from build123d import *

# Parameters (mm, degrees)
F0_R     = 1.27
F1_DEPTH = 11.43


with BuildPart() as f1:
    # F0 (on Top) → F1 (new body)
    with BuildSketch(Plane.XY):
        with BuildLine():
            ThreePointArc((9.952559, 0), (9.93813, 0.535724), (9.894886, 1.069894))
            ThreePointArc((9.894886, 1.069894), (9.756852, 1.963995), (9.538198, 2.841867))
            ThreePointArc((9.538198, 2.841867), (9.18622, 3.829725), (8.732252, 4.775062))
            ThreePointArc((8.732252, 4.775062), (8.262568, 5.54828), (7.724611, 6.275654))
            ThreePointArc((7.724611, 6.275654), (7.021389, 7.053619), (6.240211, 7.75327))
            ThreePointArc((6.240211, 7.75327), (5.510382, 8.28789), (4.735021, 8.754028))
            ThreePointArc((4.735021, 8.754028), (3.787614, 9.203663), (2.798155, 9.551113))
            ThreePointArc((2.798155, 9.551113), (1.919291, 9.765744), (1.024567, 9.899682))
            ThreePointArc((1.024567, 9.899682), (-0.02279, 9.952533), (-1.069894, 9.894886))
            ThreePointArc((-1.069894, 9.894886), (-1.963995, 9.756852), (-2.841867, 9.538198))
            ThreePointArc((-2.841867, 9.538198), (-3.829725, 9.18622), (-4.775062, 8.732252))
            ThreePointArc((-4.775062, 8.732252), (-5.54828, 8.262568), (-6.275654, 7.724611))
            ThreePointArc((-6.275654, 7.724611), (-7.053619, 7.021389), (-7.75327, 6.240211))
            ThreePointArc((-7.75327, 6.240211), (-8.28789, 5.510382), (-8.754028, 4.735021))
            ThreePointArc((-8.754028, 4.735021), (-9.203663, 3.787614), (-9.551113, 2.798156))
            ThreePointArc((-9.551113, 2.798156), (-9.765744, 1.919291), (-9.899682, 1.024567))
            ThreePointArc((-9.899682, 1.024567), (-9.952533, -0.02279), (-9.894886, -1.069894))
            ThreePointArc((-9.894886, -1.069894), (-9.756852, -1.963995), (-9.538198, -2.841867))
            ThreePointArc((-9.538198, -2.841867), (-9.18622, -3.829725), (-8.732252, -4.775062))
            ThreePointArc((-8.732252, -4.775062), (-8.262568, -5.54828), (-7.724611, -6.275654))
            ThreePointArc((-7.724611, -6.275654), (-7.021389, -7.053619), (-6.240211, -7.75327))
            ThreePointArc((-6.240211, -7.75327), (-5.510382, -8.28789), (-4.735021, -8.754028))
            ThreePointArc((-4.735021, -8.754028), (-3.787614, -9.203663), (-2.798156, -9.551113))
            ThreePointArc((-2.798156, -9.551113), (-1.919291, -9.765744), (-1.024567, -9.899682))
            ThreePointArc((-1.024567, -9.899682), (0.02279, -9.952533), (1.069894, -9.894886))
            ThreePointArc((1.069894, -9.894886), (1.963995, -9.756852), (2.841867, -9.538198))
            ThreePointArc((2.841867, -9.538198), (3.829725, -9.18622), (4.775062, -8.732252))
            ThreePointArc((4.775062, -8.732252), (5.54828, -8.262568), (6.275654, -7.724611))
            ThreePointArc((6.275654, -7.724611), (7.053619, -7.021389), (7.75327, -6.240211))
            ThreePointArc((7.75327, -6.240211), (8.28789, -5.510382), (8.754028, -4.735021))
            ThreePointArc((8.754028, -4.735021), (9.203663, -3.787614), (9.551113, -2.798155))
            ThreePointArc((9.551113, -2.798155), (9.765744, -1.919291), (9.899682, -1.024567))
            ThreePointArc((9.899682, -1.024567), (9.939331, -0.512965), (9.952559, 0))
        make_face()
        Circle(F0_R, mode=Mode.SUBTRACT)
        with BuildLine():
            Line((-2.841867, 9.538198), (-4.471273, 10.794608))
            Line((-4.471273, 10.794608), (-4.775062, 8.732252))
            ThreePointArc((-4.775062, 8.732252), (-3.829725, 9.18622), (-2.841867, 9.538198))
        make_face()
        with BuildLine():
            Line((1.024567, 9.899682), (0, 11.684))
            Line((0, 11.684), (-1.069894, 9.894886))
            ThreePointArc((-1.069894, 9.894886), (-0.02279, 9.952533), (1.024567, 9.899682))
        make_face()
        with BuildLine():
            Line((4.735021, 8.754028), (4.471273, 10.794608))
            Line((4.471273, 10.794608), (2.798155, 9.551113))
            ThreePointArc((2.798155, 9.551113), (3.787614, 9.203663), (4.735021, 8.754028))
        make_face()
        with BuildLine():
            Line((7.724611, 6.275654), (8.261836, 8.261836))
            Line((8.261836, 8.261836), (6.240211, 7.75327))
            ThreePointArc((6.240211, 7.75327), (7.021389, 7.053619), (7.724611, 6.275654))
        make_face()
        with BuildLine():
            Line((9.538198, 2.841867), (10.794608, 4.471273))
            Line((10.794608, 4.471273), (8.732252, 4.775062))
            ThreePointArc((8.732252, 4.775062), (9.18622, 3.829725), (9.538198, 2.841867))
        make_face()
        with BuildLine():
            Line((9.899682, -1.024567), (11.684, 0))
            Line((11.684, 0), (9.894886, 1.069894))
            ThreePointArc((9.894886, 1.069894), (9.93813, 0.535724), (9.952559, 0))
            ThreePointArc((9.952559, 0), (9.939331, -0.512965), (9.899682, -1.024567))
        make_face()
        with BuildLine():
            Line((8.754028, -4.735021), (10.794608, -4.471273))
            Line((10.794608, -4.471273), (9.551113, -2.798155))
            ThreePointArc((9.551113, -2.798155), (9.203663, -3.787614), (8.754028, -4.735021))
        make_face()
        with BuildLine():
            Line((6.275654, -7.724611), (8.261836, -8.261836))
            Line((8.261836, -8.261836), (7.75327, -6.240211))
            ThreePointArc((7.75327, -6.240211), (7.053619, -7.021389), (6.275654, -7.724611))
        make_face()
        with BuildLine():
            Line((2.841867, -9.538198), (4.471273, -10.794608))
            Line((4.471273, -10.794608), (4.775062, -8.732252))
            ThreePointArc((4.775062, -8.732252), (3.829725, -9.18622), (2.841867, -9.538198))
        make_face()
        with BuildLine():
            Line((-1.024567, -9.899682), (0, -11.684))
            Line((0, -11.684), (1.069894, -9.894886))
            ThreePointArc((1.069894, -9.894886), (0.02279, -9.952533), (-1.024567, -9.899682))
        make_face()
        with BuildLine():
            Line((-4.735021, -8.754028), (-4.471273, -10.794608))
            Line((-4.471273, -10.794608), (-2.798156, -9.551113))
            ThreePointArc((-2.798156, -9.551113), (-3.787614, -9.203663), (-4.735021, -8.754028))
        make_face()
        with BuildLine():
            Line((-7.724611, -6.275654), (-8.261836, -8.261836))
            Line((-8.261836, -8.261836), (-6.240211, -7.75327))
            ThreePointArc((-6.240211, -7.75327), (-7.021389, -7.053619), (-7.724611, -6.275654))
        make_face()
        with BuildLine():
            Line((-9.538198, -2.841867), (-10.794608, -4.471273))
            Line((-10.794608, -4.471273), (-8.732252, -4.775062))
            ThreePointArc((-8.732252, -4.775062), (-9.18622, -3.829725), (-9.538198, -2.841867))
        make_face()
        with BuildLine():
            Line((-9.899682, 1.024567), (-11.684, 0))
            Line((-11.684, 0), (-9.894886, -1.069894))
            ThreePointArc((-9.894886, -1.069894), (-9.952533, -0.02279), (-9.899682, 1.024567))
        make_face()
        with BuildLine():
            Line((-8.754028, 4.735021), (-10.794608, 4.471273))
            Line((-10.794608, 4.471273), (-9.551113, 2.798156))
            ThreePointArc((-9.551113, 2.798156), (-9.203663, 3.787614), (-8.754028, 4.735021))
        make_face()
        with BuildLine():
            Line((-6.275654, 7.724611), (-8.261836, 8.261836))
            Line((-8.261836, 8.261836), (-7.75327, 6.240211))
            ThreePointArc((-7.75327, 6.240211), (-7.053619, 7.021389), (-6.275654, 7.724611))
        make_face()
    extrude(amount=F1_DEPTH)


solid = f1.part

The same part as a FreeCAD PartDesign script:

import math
import FreeCAD as App
import Part
import Sketcher

V = App.Vector
Q = App.Units.Quantity

doc = App.newDocument("Part")
params = doc.addObject("Spreadsheet::Sheet", "Params")
for row, (alias, value) in enumerate([
    ("sketch1_diameter", "0.1 in"),
    ("pad1_length", "0.45 in"),
], start=1):
    params.set(f"A{row}", alias)
    params.set(f"B{row}", "=" + value)
    params.setAlias(f"B{row}", alias)

body = doc.addObject("PartDesign::Body", "Body")

sketch1 = doc.addObject("Sketcher::SketchObject", "Sketch")
body.addObject(sketch1)
sketch1.AttachmentSupport = (doc.XY_Plane, [""])
sketch1.MapMode = "FlatFace"
sketch1.addGeometry([
    Part.ArcOfCircle(Part.Circle(V(0.000021, 0.000001, 0), V(0, 0, 1), 9.952539), math.radians(6.171196), math.radians(16.591241)),
    Part.LineSegment(V(9.538198, 2.841867, 0), V(10.794608, 4.471273, 0)),
    Part.LineSegment(V(10.794608, 4.471273, 0), V(8.732252, 4.775062, 0)),
    Part.ArcOfCircle(Part.Circle(V(-0.000044, -0.000027, 0), V(0, 0, 1), 9.952611), math.radians(28.671202), math.radians(39.091175)),
    Part.LineSegment(V(7.724611, 6.275654, 0), V(8.261836, 8.261836, 0)),
    Part.LineSegment(V(8.261836, 8.261836, 0), V(6.240211, 7.75327, 0)),
    Part.ArcOfCircle(Part.Circle(V(0.000006, 0.000009, 0), V(0, 0, 1), 9.952548), math.radians(51.171181), math.radians(61.591214)),
    Part.LineSegment(V(4.735021, 8.754028, 0), V(4.471273, 10.794608, 0)),
    Part.LineSegment(V(4.471273, 10.794608, 0), V(2.798155, 9.551113, 0)),
    Part.ArcOfCircle(Part.Circle(V(-0.000008, -0.000027, 0), V(0, 0, 1), 9.952587), math.radians(73.671188), math.radians(84.091183)),
    Part.LineSegment(V(1.024567, 9.899682, 0), V(0, 11.684, 0)),
    Part.LineSegment(V(0, 11.684, 0), V(-1.069894, 9.894886, 0)),
    Part.ArcOfCircle(Part.Circle(V(-0.000001, 0.000021, 0), V(0, 0, 1), 9.952539), math.radians(96.171196), math.radians(106.591241)),
    Part.LineSegment(V(-2.841867, 9.538198, 0), V(-4.471273, 10.794608, 0)),
    Part.LineSegment(V(-4.471273, 10.794608, 0), V(-4.775062, 8.732252, 0)),
    Part.ArcOfCircle(Part.Circle(V(0.000027, -0.000044, 0), V(0, 0, 1), 9.952611), math.radians(118.671202), math.radians(129.091175)),
    Part.LineSegment(V(-6.275654, 7.724611, 0), V(-8.261836, 8.261836, 0)),
    Part.LineSegment(V(-8.261836, 8.261836, 0), V(-7.75327, 6.240211, 0)),
    Part.ArcOfCircle(Part.Circle(V(-0.000009, 0.000006, 0), V(0, 0, 1), 9.952548), math.radians(141.171181), math.radians(151.591214)),
    Part.LineSegment(V(-8.754028, 4.735021, 0), V(-10.794608, 4.471273, 0)),
    Part.LineSegment(V(-10.794608, 4.471273, 0), V(-9.551113, 2.798156, 0)),
    Part.ArcOfCircle(Part.Circle(V(0.00006, -0.000013, 0), V(0, 0, 1), 9.952621), math.radians(163.671209), math.radians(174.091174)),
    Part.LineSegment(V(-9.899682, 1.024567, 0), V(-11.684, 0, 0)),
    Part.LineSegment(V(-11.684, 0, 0), V(-9.894886, -1.069894, 0)),
    Part.ArcOfCircle(Part.Circle(V(-0.000021, -0.000001, 0), V(0, 0, 1), 9.952539), math.radians(-173.828804), math.radians(-163.408759)),
    Part.LineSegment(V(-9.538198, -2.841867, 0), V(-10.794608, -4.471273, 0)),
    Part.LineSegment(V(-10.794608, -4.471273, 0), V(-8.732252, -4.775062, 0)),
    Part.ArcOfCircle(Part.Circle(V(0.000044, 0.000027, 0), V(0, 0, 1), 9.952611), math.radians(-151.328798), math.radians(-140.908825)),
    Part.LineSegment(V(-7.724611, -6.275654, 0), V(-8.261836, -8.261836, 0)),
    Part.LineSegment(V(-8.261836, -8.261836, 0), V(-6.240211, -7.75327, 0)),
    Part.ArcOfCircle(Part.Circle(V(-0.000006, -0.000009, 0), V(0, 0, 1), 9.952548), math.radians(-128.828819), math.radians(-118.408786)),
    Part.LineSegment(V(-4.735021, -8.754028, 0), V(-4.471273, -10.794608, 0)),
    Part.LineSegment(V(-4.471273, -10.794608, 0), V(-2.798156, -9.551113, 0)),
    Part.ArcOfCircle(Part.Circle(V(0.000013, 0.00006, 0), V(0, 0, 1), 9.952621), math.radians(-106.328791), math.radians(-95.908826)),
    Part.LineSegment(V(-1.024567, -9.899682, 0), V(0, -11.684, 0)),
    Part.LineSegment(V(0, -11.684, 0), V(1.069894, -9.894886, 0)),
    Part.ArcOfCircle(Part.Circle(V(0.000001, -0.000021, 0), V(0, 0, 1), 9.952539), math.radians(-83.828804), math.radians(-73.408759)),
    Part.LineSegment(V(2.841867, -9.538198, 0), V(4.471273, -10.794608, 0)),
    Part.LineSegment(V(4.471273, -10.794608, 0), V(4.775062, -8.732252, 0)),
    Part.ArcOfCircle(Part.Circle(V(-0.000027, 0.000044, 0), V(0, 0, 1), 9.952611), math.radians(-61.328798), math.radians(-50.908825)),
    Part.LineSegment(V(6.275654, -7.724611, 0), V(8.261836, -8.261836, 0)),
    Part.LineSegment(V(8.261836, -8.261836, 0), V(7.75327, -6.240211, 0)),
    Part.ArcOfCircle(Part.Circle(V(0.000009, -0.000006, 0), V(0, 0, 1), 9.952548), math.radians(-38.828819), math.radians(-28.408786)),
    Part.LineSegment(V(8.754028, -4.735021, 0), V(10.794608, -4.471273, 0)),
    Part.LineSegment(V(10.794608, -4.471273, 0), V(9.551113, -2.798155, 0)),
    Part.ArcOfCircle(Part.Circle(V(-0.000027, 0.000008, 0), V(0, 0, 1), 9.952587), math.radians(-16.328812), math.radians(-5.908817)),
    Part.LineSegment(V(9.899682, -1.024567, 0), V(11.684, 0, 0)),
    Part.LineSegment(V(11.684, 0, 0), V(9.894886, 1.069894, 0)),
    Part.Circle(V(0, 0, 0), V(0, 0, 1), 1.27),
], False)
sketch1.addConstraint([
    Sketcher.Constraint("Coincident", 0, 2, 1, 1),
    Sketcher.Constraint("Coincident", 1, 2, 2, 1),
    Sketcher.Constraint("Coincident", 2, 2, 3, 1),
    Sketcher.Constraint("Coincident", 3, 2, 4, 1),
    Sketcher.Constraint("Coincident", 4, 2, 5, 1),
    Sketcher.Constraint("Coincident", 5, 2, 6, 1),
    Sketcher.Constraint("Coincident", 6, 2, 7, 1),
    Sketcher.Constraint("Coincident", 7, 2, 8, 1),
    Sketcher.Constraint("Coincident", 8, 2, 9, 1),
    Sketcher.Constraint("Coincident", 9, 2, 10, 1),
    Sketcher.Constraint("Coincident", 10, 2, 11, 1),
    Sketcher.Constraint("Coincident", 11, 2, 12, 1),
    Sketcher.Constraint("Coincident", 12, 2, 13, 1),
    Sketcher.Constraint("Coincident", 13, 2, 14, 1),
    Sketcher.Constraint("Coincident", 14, 2, 15, 1),
    Sketcher.Constraint("Coincident", 15, 2, 16, 1),
    Sketcher.Constraint("Coincident", 16, 2, 17, 1),
    Sketcher.Constraint("Coincident", 17, 2, 18, 1),
    Sketcher.Constraint("Coincident", 18, 2, 19, 1),
    Sketcher.Constraint("Coincident", 19, 2, 20, 1),
    Sketcher.Constraint("Coincident", 20, 2, 21, 1),
    Sketcher.Constraint("Coincident", 21, 2, 22, 1),
    Sketcher.Constraint("Coincident", 22, 2, 23, 1),
    Sketcher.Constraint("Coincident", 23, 2, 24, 1),
    Sketcher.Constraint("Coincident", 24, 2, 25, 1),
    Sketcher.Constraint("Coincident", 25, 2, 26, 1),
    Sketcher.Constraint("Coincident", 26, 2, 27, 1),
    Sketcher.Constraint("Coincident", 27, 2, 28, 1),
    Sketcher.Constraint("Coincident", 28, 2, 29, 1),
    Sketcher.Constraint("Coincident", 29, 2, 30, 1),
    Sketcher.Constraint("Coincident", 30, 2, 31, 1),
    Sketcher.Constraint("Coincident", 31, 2, 32, 1),
    Sketcher.Constraint("Coincident", 32, 2, 33, 1),
    Sketcher.Constraint("Coincident", 33, 2, 34, 1),
    Sketcher.Constraint("Coincident", 34, 2, 35, 1),
    Sketcher.Constraint("Coincident", 35, 2, 36, 1),
    Sketcher.Constraint("Coincident", 36, 2, 37, 1),
    Sketcher.Constraint("Coincident", 37, 2, 38, 1),
    Sketcher.Constraint("Coincident", 38, 2, 39, 1),
    Sketcher.Constraint("Coincident", 39, 2, 40, 1),
    Sketcher.Constraint("Coincident", 40, 2, 41, 1),
    Sketcher.Constraint("Coincident", 41, 2, 42, 1),
    Sketcher.Constraint("Coincident", 42, 2, 43, 1),
    Sketcher.Constraint("Coincident", 43, 2, 44, 1),
    Sketcher.Constraint("Coincident", 44, 2, 45, 1),
    Sketcher.Constraint("Coincident", 45, 2, 46, 1),
    Sketcher.Constraint("Coincident", 46, 2, 47, 1),
    Sketcher.Constraint("Coincident", 47, 2, 0, 1),
    Sketcher.Constraint("Coincident", 48, 3, -1, 1),
    Sketcher.Constraint("PointOnObject", 0, 3, -1),
    Sketcher.Constraint("PointOnObject", 12, 3, -2),
    Sketcher.Constraint("PointOnObject", 24, 3, -1),
    Sketcher.Constraint("PointOnObject", 36, 3, -2),
    Sketcher.Constraint("PointOnObject", 10, 2, -2),
    Sketcher.Constraint("PointOnObject", 22, 2, -1),
    Sketcher.Constraint("PointOnObject", 34, 2, -2),
    Sketcher.Constraint("PointOnObject", 46, 2, -1),
    Sketcher.Constraint("Diameter", 48, Q("0.1 in")),
    Sketcher.Constraint("DistanceY", -1, 1, 10, 2, Q("0.46 in")),
    Sketcher.Constraint("DistanceX", 22, 2, -1, 1, Q("0.46 in")),
    Sketcher.Constraint("DistanceY", 34, 2, -1, 1, Q("0.46 in")),
    Sketcher.Constraint("DistanceX", -1, 1, 46, 2, Q("0.46 in")),
    Sketcher.Constraint("Radius", 0, Q("9.952539 mm")),
    Sketcher.Constraint("Radius", 3, Q("9.952611 mm")),
    Sketcher.Constraint("Radius", 6, Q("9.952548 mm")),
    Sketcher.Constraint("Radius", 12, Q("9.952539 mm")),
    Sketcher.Constraint("Radius", 15, Q("9.952611 mm")),
    Sketcher.Constraint("Radius", 18, Q("9.952548 mm")),
    Sketcher.Constraint("Radius", 21, Q("9.952621 mm")),
    Sketcher.Constraint("Radius", 24, Q("9.952539 mm")),
    Sketcher.Constraint("Radius", 27, Q("9.952611 mm")),
    Sketcher.Constraint("Radius", 30, Q("9.952548 mm")),
    Sketcher.Constraint("Radius", 33, Q("9.952621 mm")),
    Sketcher.Constraint("Radius", 36, Q("9.952539 mm")),
    Sketcher.Constraint("Radius", 39, Q("9.952611 mm")),
    Sketcher.Constraint("Radius", 42, Q("9.952548 mm")),
    Sketcher.Constraint("Radius", 9, Q("9.952587 mm")),
    Sketcher.Constraint("Radius", 45, Q("9.952587 mm")),
    Sketcher.Constraint("Distance", 2, Q("2.08461 mm")),
    Sketcher.Constraint("Distance", 5, Q("2.084612 mm")),
    Sketcher.Constraint("Distance", 8, Q("2.084611 mm")),
    Sketcher.Constraint("Distance", 11, Q("2.084611 mm")),
    Sketcher.Constraint("Distance", 14, Q("2.08461 mm")),
    Sketcher.Constraint("Distance", 17, Q("2.084612 mm")),
    Sketcher.Constraint("Distance", 20, Q("2.08461 mm")),
    Sketcher.Constraint("Distance", 23, Q("2.084611 mm")),
    Sketcher.Constraint("Distance", 26, Q("2.08461 mm")),
    Sketcher.Constraint("Distance", 29, Q("2.084612 mm")),
    Sketcher.Constraint("Distance", 32, Q("2.08461 mm")),
    Sketcher.Constraint("Distance", 35, Q("2.084611 mm")),
    Sketcher.Constraint("Distance", 38, Q("2.08461 mm")),
    Sketcher.Constraint("Distance", 41, Q("2.084612 mm")),
    Sketcher.Constraint("Distance", 44, Q("2.084611 mm")),
    Sketcher.Constraint("Distance", 47, Q("2.084611 mm")),
    Sketcher.Constraint("DistanceX", -1, 1, 3, 2, Q("7.724611 mm")),
    Sketcher.Constraint("DistanceX", -1, 1, 5, 2, Q("6.240211 mm")),
    Sketcher.Constraint("DistanceY", -1, 1, 5, 2, Q("7.75327 mm")),
    Sketcher.Constraint("DistanceX", -1, 1, 6, 2, Q("4.735021 mm")),
    Sketcher.Constraint("DistanceY", -1, 1, 15, 2, Q("7.724611 mm")),
    Sketcher.Constraint("DistanceX", 17, 2, -1, 1, Q("7.75327 mm")),
    Sketcher.Constraint("DistanceY", -1, 1, 17, 2, Q("6.240211 mm")),
    Sketcher.Constraint("DistanceY", -1, 1, 18, 2, Q("4.735021 mm")),
    Sketcher.Constraint("DistanceX", 27, 2, -1, 1, Q("7.724611 mm")),
    Sketcher.Constraint("DistanceX", 29, 2, -1, 1, Q("6.240211 mm")),
    Sketcher.Constraint("DistanceY", 29, 2, -1, 1, Q("7.75327 mm")),
    Sketcher.Constraint("DistanceX", 30, 2, -1, 1, Q("4.735021 mm")),
    Sketcher.Constraint("DistanceY", 39, 2, -1, 1, Q("7.724611 mm")),
    Sketcher.Constraint("DistanceX", -1, 1, 41, 2, Q("7.75327 mm")),
    Sketcher.Constraint("DistanceY", 41, 2, -1, 1, Q("6.240211 mm")),
    Sketcher.Constraint("DistanceY", 42, 2, -1, 1, Q("4.735021 mm")),
    Sketcher.Constraint("Distance", 1, Q("2.057554 mm")),
    Sketcher.Constraint("Distance", 4, Q("2.057554 mm")),
    Sketcher.Constraint("Distance", 7, Q("2.057554 mm")),
    Sketcher.Constraint("Distance", 10, Q("2.057554 mm")),
    Sketcher.Constraint("Distance", 13, Q("2.057554 mm")),
    Sketcher.Constraint("Distance", 16, Q("2.057554 mm")),
    Sketcher.Constraint("Distance", 19, Q("2.057554 mm")),
    Sketcher.Constraint("Distance", 22, Q("2.057554 mm")),
    Sketcher.Constraint("Distance", 25, Q("2.057554 mm")),
    Sketcher.Constraint("Distance", 28, Q("2.057554 mm")),
    Sketcher.Constraint("Distance", 31, Q("2.057554 mm")),
    Sketcher.Constraint("Distance", 34, Q("2.057554 mm")),
    Sketcher.Constraint("Distance", 37, Q("2.057554 mm")),
    Sketcher.Constraint("Distance", 40, Q("2.057554 mm")),
    Sketcher.Constraint("Distance", 43, Q("2.057554 mm")),
    Sketcher.Constraint("Distance", 46, Q("2.057554 mm")),
    Sketcher.Constraint("DistanceX", -1, 1, 0, 2, Q("9.538198 mm")),
    Sketcher.Constraint("DistanceY", -1, 1, 0, 2, Q("2.841867 mm")),
    Sketcher.Constraint("DistanceX", -1, 1, 1, 2, Q("10.794608 mm")),
    Sketcher.Constraint("DistanceX", -1, 1, 2, 2, Q("8.732252 mm")),
    Sketcher.Constraint("DistanceY", -1, 1, 3, 2, Q("6.275654 mm")),
    Sketcher.Constraint("DistanceY", -1, 1, 6, 2, Q("8.754028 mm")),
    Sketcher.Constraint("DistanceX", -1, 1, 7, 2, Q("4.471273 mm")),
    Sketcher.Constraint("DistanceX", -1, 1, 8, 2, Q("2.798155 mm")),
    Sketcher.Constraint("DistanceX", -1, 1, 9, 2, Q("1.024567 mm")),
    Sketcher.Constraint("DistanceX", 11, 2, -1, 1, Q("1.069894 mm")),
    Sketcher.Constraint("DistanceX", 12, 2, -1, 1, Q("2.841867 mm")),
    Sketcher.Constraint("DistanceX", 13, 2, -1, 1, Q("4.471273 mm")),
    Sketcher.Constraint("DistanceX", 14, 2, -1, 1, Q("4.775062 mm")),
    Sketcher.Constraint("DistanceX", 15, 2, -1, 1, Q("6.275654 mm")),
    Sketcher.Constraint("DistanceX", 18, 2, -1, 1, Q("8.754028 mm")),
    Sketcher.Constraint("DistanceX", 19, 2, -1, 1, Q("10.794608 mm")),
    Sketcher.Constraint("DistanceX", 20, 2, -1, 1, Q("9.551113 mm")),
    Sketcher.Constraint("DistanceX", 21, 2, -1, 1, Q("9.899682 mm")),
    Sketcher.Constraint("DistanceX", 23, 2, -1, 1, Q("9.894886 mm")),
    Sketcher.Constraint("DistanceX", 24, 2, -1, 1, Q("9.538198 mm")),
    Sketcher.Constraint("DistanceX", 25, 2, -1, 1, Q("10.794608 mm")),
    Sketcher.Constraint("DistanceX", 26, 2, -1, 1, Q("8.732252 mm")),
    Sketcher.Constraint("DistanceY", 27, 2, -1, 1, Q("6.275654 mm")),
    Sketcher.Constraint("DistanceY", 30, 2, -1, 1, Q("8.754028 mm")),
    Sketcher.Constraint("DistanceX", 31, 2, -1, 1, Q("4.471273 mm")),
    Sketcher.Constraint("DistanceX", 32, 2, -1, 1, Q("2.798156 mm")),
    Sketcher.Constraint("DistanceX", 33, 2, -1, 1, Q("1.024567 mm")),
    Sketcher.Constraint("DistanceX", -1, 1, 35, 2, Q("1.069894 mm")),
    Sketcher.Constraint("DistanceX", -1, 1, 36, 2, Q("2.841867 mm")),
    Sketcher.Constraint("DistanceX", -1, 1, 37, 2, Q("4.471273 mm")),
    Sketcher.Constraint("DistanceX", -1, 1, 38, 2, Q("4.775062 mm")),
    Sketcher.Constraint("DistanceX", -1, 1, 39, 2, Q("6.275654 mm")),
    Sketcher.Constraint("DistanceX", -1, 1, 42, 2, Q("8.754028 mm")),
    Sketcher.Constraint("DistanceX", -1, 1, 43, 2, Q("10.794608 mm")),
    Sketcher.Constraint("DistanceX", -1, 1, 44, 2, Q("9.551113 mm")),
    Sketcher.Constraint("DistanceX", -1, 1, 45, 2, Q("9.899682 mm")),
])
sketch1.setExpression("Constraints[57]", "Params.sketch1_diameter")
pad1 = doc.addObject("PartDesign::Pad", "Pad")
body.addObject(pad1)
pad1.Profile = sketch1
pad1.setExpression("Length", "Params.pad1_length")

doc.recompute()
